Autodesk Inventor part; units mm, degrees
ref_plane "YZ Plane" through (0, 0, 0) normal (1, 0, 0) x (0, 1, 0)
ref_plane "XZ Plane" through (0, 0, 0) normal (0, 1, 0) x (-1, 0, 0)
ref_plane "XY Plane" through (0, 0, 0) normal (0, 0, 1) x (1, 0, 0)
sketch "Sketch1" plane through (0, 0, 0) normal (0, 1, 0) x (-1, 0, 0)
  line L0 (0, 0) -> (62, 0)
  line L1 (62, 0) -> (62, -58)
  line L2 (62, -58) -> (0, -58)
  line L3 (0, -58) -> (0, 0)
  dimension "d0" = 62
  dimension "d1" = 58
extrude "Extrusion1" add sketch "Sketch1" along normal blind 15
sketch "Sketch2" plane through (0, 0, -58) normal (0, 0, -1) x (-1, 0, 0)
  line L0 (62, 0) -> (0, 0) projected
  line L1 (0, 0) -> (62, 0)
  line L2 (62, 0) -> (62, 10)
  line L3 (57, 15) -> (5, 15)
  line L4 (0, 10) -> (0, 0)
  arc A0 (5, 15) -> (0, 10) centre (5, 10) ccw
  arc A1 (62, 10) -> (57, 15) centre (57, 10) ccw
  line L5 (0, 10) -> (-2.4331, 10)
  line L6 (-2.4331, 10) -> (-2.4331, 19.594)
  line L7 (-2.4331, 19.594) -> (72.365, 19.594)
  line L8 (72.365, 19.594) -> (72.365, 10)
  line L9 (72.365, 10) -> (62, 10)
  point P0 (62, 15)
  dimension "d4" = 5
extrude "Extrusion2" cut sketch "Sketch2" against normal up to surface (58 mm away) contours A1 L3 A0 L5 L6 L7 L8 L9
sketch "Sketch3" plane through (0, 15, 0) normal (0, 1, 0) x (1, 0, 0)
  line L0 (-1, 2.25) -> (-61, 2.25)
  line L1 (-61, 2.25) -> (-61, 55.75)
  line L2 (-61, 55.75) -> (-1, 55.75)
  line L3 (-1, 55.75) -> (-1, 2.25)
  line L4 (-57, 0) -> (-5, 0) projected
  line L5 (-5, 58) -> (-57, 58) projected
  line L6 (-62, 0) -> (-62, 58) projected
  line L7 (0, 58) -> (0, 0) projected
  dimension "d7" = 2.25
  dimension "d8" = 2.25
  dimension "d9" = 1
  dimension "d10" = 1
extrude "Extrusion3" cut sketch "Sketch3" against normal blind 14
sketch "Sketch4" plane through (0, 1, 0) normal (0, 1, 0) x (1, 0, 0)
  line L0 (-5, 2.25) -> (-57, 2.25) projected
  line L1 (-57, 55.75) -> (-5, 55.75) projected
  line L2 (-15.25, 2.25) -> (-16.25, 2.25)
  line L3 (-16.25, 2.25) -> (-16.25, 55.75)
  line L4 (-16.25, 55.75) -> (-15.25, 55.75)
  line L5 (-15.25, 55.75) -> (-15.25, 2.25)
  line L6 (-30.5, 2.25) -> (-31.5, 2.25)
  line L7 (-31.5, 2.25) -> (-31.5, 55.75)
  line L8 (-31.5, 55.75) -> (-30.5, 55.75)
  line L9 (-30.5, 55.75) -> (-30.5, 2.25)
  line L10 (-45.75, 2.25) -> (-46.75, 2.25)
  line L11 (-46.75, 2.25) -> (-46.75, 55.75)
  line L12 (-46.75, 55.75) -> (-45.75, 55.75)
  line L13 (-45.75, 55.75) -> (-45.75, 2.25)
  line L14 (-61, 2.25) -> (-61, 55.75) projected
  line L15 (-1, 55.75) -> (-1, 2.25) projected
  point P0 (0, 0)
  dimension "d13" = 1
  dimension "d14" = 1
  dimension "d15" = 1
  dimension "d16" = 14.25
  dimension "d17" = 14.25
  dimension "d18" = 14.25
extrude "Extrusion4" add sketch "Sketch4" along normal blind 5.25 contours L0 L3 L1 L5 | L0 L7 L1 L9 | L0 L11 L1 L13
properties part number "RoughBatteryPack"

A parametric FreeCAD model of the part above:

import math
import FreeCAD as App
import Part
import Sketcher

V = App.Vector
Q = App.Units.Quantity

doc = App.newDocument("Part")
body = doc.addObject("PartDesign::Body", "Body")

# Sketch on XZ plane
sketch1 = doc.addObject("Sketcher::SketchObject", "Sketch")
body.addObject(sketch1)
sketch1.AttachmentSupport = (doc.XZ_Plane, [""])
sketch1.MapMode = "FlatFace"
sketch1.addGeometry([
    Part.LineSegment(V(-62, 0, 0), V(0, 0, 0)),
    Part.LineSegment(V(0, 0, 0), V(0, -58, 0)),
    Part.LineSegment(V(0, -58, 0), V(-62, -58, 0)),
    Part.LineSegment(V(-62, -58, 0), V(-62, 0, 0)),
], False)
sketch1.addConstraint([
    Sketcher.Constraint("Coincident", 0, 2, 1, 1),
    Sketcher.Constraint("Coincident", 1, 2, 2, 1),
    Sketcher.Constraint("Coincident", 2, 2, 3, 1),
    Sketcher.Constraint("Coincident", 3, 2, 0, 1),
    Sketcher.Constraint("Horizontal", 0),
    Sketcher.Constraint("Vertical", 1),
    Sketcher.Constraint("Horizontal", 2),
    Sketcher.Constraint("Vertical", 3),
    Sketcher.Constraint("Coincident", 0, 2, -1, 1),
    Sketcher.Constraint("DistanceX", 0, 1, 0, 2, Q("62 mm")),
    Sketcher.Constraint("DistanceY", 1, 2, 1, 1, Q("58 mm")),
])
pad1 = doc.addObject("PartDesign::Pad", "Pad")
body.addObject(pad1)
pad1.Profile = sketch1
pad1.Length = 15
pad1.Reversed = True

# Sketch on XY plane
sketch2 = doc.addObject("Sketcher::SketchObject", "Sketch001")
body.addObject(sketch2)
sketch2.AttachmentSupport = (doc.XY_Plane, [""])
sketch2.MapMode = "FlatFace"
sketch2.AttachmentOffset = App.Placement(V(0, 0, -58), App.Rotation())
sketch2.addGeometry([
    Part.ArcOfCircle(Part.Circle(V(-57, 10, 0), V(0, 0, 1), 5), math.radians(90), math.radians(180)),  # 0
    Part.LineSegment(V(-62, 10, 0), V(-72.4, 10, 0)),  # 1
    Part.LineSegment(V(-72.4, 10, 0), V(-72.4, 19.6, 0)),  # 2
    Part.LineSegment(V(-72.4, 19.6, 0), V(2.4, 19.6, 0)),  # 3
    Part.LineSegment(V(2.4, 19.6, 0), V(2.4, 10, 0)),  # 4
    Part.LineSegment(V(2.4, 10, 0), V(0, 10, 0)),  # 5
    Part.ArcOfCircle(Part.Circle(V(-5, 10, 0), V(0, 0, 1), 5), math.radians(0), math.radians(90)),  # 6
    Part.LineSegment(V(-5, 15, 0), V(-57, 15, 0)),  # 7
], False)
sketch2.addConstraint([
    Sketcher.Constraint("Coincident", 0, 2, 1, 1),
    Sketcher.Constraint("Coincident", 1, 2, 2, 1),
    Sketcher.Constraint("Coincident", 2, 2, 3, 1),
    Sketcher.Constraint("Coincident", 3, 2, 4, 1),
    Sketcher.Constraint("Coincident", 4, 2, 5, 1),
    Sketcher.Constraint("Coincident", 5, 2, 6, 1),
    Sketcher.Constraint("Tangent", 6, 2, 7, 1),
    Sketcher.Constraint("Tangent", 7, 2, 0, 1),
    Sketcher.Constraint("Horizontal", 1),
    Sketcher.Constraint("Vertical", 2),
    Sketcher.Constraint("Horizontal", 3),
    Sketcher.Constraint("Vertical", 4),
    Sketcher.Constraint("Horizontal", 5),
    Sketcher.Constraint("Horizontal", 7),
    Sketcher.Constraint("Equal", 0, 6),
    Sketcher.Constraint("PointOnObject", 5, 2, -2),
    Sketcher.Constraint("Horizontal", 6, 3, 0, 2),
    Sketcher.Constraint("Horizontal", 1, 2, 4, 2),
    Sketcher.Constraint("Radius", 0, Q("5 mm")),
    Sketcher.Constraint("DistanceX", 7, 2, 7, 1, Q("52 mm")),
    Sketcher.Constraint("DistanceY", -1, 1, 0, 3, Q("10 mm")),
    Sketcher.Constraint("DistanceX", 1, 2, 1, 1, Q("10.365 mm")),
    Sketcher.Constraint("DistanceX", 3, 1, 3, 2, Q("74.798 mm")),
    Sketcher.Constraint("DistanceY", 2, 1, 2, 2, Q("9.594 mm")),
])
pocket1 = doc.addObject("PartDesign::Pocket", "Pocket")
body.addObject(pocket1)
pocket1.Profile = sketch2
pocket1.Length = 58
pocket1.Reversed = True

# Sketch on XZ plane
sketch3 = doc.addObject("Sketcher::SketchObject", "Sketch002")
body.addObject(sketch3)
sketch3.AttachmentSupport = (doc.XZ_Plane, [""])
sketch3.MapMode = "FlatFace"
sketch3.AttachmentOffset = App.Placement(V(0, 0, -15), App.Rotation())
sketch3.addGeometry([
    Part.LineSegment(V(-61, -2, 0), V(-1, -2, 0)),
    Part.LineSegment(V(-1, -2, 0), V(-1, -56, 0)),
    Part.LineSegment(V(-1, -56, 0), V(-61, -56, 0)),
    Part.LineSegment(V(-61, -56, 0), V(-61, -2, 0)),
], False)
sketch3.addConstraint([
    Sketcher.Constraint("Coincident", 0, 2, 1, 1),
    Sketcher.Constraint("Coincident", 1, 2, 2, 1),
    Sketcher.Constraint("Coincident", 2, 2, 3, 1),
    Sketcher.Constraint("Coincident", 3, 2, 0, 1),
    Sketcher.Constraint("Horizontal", 0),
    Sketcher.Constraint("Vertical", 1),
    Sketcher.Constraint("Horizontal", 2),
    Sketcher.Constraint("Vertical", 3),
    Sketcher.Constraint("DistanceX", 0, 2, -1, 1, Q("1 mm")),
    Sketcher.Constraint("DistanceX", 0, 1, 0, 2, Q("60 mm")),
    Sketcher.Constraint("DistanceY", 0, 2, -1, 1, Q("2.25 mm")),
    Sketcher.Constraint("DistanceY", 1, 2, 1, 1, Q("53.5 mm")),
])
pocket2 = doc.addObject("PartDesign::Pocket", "Pocket001")
body.addObject(pocket2)
pocket2.Profile = sketch3
pocket2.Length = 14
pocket2.Reversed = True

# Sketch on XZ plane
sketch4 = doc.addObject("Sketcher::SketchObject", "Sketch003")
body.addObject(sketch4)
sketch4.AttachmentSupport = (doc.XZ_Plane, [""])
sketch4.MapMode = "FlatFace"
sketch4.AttachmentOffset = App.Placement(V(0, 0, -1), App.Rotation())
sketch4.addGeometry([
    Part.LineSegment(V(-16.2, -2.2, 0), V(-15.2, -2.2, 0)),  # 0
    Part.LineSegment(V(-15.2, -2.2, 0), V(-15.2, -55.8, 0)),  # 1
    Part.LineSegment(V(-15.2, -55.8, 0), V(-16.2, -55.8, 0)),  # 2
    Part.LineSegment(V(-16.2, -55.8, 0), V(-16.2, -2.2, 0)),  # 3
    Part.LineSegment(V(-31.5, -2.2, 0), V(-30.5, -2.2, 0)),  # 4
    Part.LineSegment(V(-30.5, -2.2, 0), V(-30.5, -55.8, 0)),  # 5
    Part.LineSegment(V(-30.5, -55.8, 0), V(-31.5, -55.8, 0)),  # 6
    Part.LineSegment(V(-31.5, -55.8, 0), V(-31.5, -2.2, 0)),  # 7
    Part.LineSegment(V(-46.8, -2.2, 0), V(-45.8, -2.2, 0)),  # 8
    Part.LineSegment(V(-45.8, -2.2, 0), V(-45.8, -55.8, 0)),  # 9
    Part.LineSegment(V(-45.8, -55.8, 0), V(-46.8, -55.8, 0)),  # 10
    Part.LineSegment(V(-46.8, -55.8, 0), V(-46.8, -2.2, 0)),  # 11
], False)
sketch4.addConstraint([
    Sketcher.Constraint("Coincident", 0, 2, 1, 1),
    Sketcher.Constraint("Coincident", 1, 2, 2, 1),
    Sketcher.Constraint("Coincident", 2, 2, 3, 1),
    Sketcher.Constraint("Coincident", 3, 2, 0, 1),
    Sketcher.Constraint("Coincident", 4, 2, 5, 1),
    Sketcher.Constraint("Coincident", 5, 2, 6, 1),
    Sketcher.Constraint("Coincident", 6, 2, 7, 1),
    Sketcher.Constraint("Coincident", 7, 2, 4, 1),
    Sketcher.Constraint("Coincident", 8, 2, 9, 1),
    Sketcher.Constraint("Coincident", 9, 2, 10, 1),
    Sketcher.Constraint("Coincident", 10, 2, 11, 1),
    Sketcher.Constraint("Coincident", 11, 2, 8, 1),
    Sketcher.Constraint("Horizontal", 0),
    Sketcher.Constraint("Vertical", 1),
    Sketcher.Constraint("Horizontal", 2),
    Sketcher.Constraint("Vertical", 3),
    Sketcher.Constraint("Horizontal", 4),
    Sketcher.Constraint("Vertical", 5),
    Sketcher.Constraint("Horizontal", 6),
    Sketcher.Constraint("Vertical", 7),
    Sketcher.Constraint("Horizontal", 8),
    Sketcher.Constraint("Vertical", 9),
    Sketcher.Constraint("Horizontal", 10),
    Sketcher.Constraint("Vertical", 11),
    Sketcher.Constraint("Horizontal", 3, 2, 4, 2),
    Sketcher.Constraint("Horizontal", 2, 2, 5, 2),
    Sketcher.Constraint("Horizontal", 7, 2, 8, 2),
    Sketcher.Constraint("Horizontal", 6, 2, 9, 2),
    Sketcher.Constraint("Equal", 2, 4),
    Sketcher.Constraint("Equal", 6, 8),
    Sketcher.Constraint("DistanceX", 0, 1, 0, 2, Q("1 mm")),
    Sketcher.Constraint("DistanceX", 4, 2, 3, 2, Q("14.25 mm")),
    Sketcher.Constraint("DistanceX", 8, 2, 7, 2, Q("14.25 mm")),
    Sketcher.Constraint("DistanceY", 1, 2, 1, 1, Q("53.5 mm")),
    Sketcher.Constraint("DistanceX", 4, 2, -1, 1, Q("30.5 mm")),
    Sketcher.Constraint("DistanceY", 0, 2, -1, 1, Q("2.25 mm")),
])
pad2 = doc.addObject("PartDesign::Pad", "Pad001")
body.addObject(pad2)
pad2.Profile = sketch4
pad2.Length = 5.25
pad2.Reversed = True

doc.recompute()
